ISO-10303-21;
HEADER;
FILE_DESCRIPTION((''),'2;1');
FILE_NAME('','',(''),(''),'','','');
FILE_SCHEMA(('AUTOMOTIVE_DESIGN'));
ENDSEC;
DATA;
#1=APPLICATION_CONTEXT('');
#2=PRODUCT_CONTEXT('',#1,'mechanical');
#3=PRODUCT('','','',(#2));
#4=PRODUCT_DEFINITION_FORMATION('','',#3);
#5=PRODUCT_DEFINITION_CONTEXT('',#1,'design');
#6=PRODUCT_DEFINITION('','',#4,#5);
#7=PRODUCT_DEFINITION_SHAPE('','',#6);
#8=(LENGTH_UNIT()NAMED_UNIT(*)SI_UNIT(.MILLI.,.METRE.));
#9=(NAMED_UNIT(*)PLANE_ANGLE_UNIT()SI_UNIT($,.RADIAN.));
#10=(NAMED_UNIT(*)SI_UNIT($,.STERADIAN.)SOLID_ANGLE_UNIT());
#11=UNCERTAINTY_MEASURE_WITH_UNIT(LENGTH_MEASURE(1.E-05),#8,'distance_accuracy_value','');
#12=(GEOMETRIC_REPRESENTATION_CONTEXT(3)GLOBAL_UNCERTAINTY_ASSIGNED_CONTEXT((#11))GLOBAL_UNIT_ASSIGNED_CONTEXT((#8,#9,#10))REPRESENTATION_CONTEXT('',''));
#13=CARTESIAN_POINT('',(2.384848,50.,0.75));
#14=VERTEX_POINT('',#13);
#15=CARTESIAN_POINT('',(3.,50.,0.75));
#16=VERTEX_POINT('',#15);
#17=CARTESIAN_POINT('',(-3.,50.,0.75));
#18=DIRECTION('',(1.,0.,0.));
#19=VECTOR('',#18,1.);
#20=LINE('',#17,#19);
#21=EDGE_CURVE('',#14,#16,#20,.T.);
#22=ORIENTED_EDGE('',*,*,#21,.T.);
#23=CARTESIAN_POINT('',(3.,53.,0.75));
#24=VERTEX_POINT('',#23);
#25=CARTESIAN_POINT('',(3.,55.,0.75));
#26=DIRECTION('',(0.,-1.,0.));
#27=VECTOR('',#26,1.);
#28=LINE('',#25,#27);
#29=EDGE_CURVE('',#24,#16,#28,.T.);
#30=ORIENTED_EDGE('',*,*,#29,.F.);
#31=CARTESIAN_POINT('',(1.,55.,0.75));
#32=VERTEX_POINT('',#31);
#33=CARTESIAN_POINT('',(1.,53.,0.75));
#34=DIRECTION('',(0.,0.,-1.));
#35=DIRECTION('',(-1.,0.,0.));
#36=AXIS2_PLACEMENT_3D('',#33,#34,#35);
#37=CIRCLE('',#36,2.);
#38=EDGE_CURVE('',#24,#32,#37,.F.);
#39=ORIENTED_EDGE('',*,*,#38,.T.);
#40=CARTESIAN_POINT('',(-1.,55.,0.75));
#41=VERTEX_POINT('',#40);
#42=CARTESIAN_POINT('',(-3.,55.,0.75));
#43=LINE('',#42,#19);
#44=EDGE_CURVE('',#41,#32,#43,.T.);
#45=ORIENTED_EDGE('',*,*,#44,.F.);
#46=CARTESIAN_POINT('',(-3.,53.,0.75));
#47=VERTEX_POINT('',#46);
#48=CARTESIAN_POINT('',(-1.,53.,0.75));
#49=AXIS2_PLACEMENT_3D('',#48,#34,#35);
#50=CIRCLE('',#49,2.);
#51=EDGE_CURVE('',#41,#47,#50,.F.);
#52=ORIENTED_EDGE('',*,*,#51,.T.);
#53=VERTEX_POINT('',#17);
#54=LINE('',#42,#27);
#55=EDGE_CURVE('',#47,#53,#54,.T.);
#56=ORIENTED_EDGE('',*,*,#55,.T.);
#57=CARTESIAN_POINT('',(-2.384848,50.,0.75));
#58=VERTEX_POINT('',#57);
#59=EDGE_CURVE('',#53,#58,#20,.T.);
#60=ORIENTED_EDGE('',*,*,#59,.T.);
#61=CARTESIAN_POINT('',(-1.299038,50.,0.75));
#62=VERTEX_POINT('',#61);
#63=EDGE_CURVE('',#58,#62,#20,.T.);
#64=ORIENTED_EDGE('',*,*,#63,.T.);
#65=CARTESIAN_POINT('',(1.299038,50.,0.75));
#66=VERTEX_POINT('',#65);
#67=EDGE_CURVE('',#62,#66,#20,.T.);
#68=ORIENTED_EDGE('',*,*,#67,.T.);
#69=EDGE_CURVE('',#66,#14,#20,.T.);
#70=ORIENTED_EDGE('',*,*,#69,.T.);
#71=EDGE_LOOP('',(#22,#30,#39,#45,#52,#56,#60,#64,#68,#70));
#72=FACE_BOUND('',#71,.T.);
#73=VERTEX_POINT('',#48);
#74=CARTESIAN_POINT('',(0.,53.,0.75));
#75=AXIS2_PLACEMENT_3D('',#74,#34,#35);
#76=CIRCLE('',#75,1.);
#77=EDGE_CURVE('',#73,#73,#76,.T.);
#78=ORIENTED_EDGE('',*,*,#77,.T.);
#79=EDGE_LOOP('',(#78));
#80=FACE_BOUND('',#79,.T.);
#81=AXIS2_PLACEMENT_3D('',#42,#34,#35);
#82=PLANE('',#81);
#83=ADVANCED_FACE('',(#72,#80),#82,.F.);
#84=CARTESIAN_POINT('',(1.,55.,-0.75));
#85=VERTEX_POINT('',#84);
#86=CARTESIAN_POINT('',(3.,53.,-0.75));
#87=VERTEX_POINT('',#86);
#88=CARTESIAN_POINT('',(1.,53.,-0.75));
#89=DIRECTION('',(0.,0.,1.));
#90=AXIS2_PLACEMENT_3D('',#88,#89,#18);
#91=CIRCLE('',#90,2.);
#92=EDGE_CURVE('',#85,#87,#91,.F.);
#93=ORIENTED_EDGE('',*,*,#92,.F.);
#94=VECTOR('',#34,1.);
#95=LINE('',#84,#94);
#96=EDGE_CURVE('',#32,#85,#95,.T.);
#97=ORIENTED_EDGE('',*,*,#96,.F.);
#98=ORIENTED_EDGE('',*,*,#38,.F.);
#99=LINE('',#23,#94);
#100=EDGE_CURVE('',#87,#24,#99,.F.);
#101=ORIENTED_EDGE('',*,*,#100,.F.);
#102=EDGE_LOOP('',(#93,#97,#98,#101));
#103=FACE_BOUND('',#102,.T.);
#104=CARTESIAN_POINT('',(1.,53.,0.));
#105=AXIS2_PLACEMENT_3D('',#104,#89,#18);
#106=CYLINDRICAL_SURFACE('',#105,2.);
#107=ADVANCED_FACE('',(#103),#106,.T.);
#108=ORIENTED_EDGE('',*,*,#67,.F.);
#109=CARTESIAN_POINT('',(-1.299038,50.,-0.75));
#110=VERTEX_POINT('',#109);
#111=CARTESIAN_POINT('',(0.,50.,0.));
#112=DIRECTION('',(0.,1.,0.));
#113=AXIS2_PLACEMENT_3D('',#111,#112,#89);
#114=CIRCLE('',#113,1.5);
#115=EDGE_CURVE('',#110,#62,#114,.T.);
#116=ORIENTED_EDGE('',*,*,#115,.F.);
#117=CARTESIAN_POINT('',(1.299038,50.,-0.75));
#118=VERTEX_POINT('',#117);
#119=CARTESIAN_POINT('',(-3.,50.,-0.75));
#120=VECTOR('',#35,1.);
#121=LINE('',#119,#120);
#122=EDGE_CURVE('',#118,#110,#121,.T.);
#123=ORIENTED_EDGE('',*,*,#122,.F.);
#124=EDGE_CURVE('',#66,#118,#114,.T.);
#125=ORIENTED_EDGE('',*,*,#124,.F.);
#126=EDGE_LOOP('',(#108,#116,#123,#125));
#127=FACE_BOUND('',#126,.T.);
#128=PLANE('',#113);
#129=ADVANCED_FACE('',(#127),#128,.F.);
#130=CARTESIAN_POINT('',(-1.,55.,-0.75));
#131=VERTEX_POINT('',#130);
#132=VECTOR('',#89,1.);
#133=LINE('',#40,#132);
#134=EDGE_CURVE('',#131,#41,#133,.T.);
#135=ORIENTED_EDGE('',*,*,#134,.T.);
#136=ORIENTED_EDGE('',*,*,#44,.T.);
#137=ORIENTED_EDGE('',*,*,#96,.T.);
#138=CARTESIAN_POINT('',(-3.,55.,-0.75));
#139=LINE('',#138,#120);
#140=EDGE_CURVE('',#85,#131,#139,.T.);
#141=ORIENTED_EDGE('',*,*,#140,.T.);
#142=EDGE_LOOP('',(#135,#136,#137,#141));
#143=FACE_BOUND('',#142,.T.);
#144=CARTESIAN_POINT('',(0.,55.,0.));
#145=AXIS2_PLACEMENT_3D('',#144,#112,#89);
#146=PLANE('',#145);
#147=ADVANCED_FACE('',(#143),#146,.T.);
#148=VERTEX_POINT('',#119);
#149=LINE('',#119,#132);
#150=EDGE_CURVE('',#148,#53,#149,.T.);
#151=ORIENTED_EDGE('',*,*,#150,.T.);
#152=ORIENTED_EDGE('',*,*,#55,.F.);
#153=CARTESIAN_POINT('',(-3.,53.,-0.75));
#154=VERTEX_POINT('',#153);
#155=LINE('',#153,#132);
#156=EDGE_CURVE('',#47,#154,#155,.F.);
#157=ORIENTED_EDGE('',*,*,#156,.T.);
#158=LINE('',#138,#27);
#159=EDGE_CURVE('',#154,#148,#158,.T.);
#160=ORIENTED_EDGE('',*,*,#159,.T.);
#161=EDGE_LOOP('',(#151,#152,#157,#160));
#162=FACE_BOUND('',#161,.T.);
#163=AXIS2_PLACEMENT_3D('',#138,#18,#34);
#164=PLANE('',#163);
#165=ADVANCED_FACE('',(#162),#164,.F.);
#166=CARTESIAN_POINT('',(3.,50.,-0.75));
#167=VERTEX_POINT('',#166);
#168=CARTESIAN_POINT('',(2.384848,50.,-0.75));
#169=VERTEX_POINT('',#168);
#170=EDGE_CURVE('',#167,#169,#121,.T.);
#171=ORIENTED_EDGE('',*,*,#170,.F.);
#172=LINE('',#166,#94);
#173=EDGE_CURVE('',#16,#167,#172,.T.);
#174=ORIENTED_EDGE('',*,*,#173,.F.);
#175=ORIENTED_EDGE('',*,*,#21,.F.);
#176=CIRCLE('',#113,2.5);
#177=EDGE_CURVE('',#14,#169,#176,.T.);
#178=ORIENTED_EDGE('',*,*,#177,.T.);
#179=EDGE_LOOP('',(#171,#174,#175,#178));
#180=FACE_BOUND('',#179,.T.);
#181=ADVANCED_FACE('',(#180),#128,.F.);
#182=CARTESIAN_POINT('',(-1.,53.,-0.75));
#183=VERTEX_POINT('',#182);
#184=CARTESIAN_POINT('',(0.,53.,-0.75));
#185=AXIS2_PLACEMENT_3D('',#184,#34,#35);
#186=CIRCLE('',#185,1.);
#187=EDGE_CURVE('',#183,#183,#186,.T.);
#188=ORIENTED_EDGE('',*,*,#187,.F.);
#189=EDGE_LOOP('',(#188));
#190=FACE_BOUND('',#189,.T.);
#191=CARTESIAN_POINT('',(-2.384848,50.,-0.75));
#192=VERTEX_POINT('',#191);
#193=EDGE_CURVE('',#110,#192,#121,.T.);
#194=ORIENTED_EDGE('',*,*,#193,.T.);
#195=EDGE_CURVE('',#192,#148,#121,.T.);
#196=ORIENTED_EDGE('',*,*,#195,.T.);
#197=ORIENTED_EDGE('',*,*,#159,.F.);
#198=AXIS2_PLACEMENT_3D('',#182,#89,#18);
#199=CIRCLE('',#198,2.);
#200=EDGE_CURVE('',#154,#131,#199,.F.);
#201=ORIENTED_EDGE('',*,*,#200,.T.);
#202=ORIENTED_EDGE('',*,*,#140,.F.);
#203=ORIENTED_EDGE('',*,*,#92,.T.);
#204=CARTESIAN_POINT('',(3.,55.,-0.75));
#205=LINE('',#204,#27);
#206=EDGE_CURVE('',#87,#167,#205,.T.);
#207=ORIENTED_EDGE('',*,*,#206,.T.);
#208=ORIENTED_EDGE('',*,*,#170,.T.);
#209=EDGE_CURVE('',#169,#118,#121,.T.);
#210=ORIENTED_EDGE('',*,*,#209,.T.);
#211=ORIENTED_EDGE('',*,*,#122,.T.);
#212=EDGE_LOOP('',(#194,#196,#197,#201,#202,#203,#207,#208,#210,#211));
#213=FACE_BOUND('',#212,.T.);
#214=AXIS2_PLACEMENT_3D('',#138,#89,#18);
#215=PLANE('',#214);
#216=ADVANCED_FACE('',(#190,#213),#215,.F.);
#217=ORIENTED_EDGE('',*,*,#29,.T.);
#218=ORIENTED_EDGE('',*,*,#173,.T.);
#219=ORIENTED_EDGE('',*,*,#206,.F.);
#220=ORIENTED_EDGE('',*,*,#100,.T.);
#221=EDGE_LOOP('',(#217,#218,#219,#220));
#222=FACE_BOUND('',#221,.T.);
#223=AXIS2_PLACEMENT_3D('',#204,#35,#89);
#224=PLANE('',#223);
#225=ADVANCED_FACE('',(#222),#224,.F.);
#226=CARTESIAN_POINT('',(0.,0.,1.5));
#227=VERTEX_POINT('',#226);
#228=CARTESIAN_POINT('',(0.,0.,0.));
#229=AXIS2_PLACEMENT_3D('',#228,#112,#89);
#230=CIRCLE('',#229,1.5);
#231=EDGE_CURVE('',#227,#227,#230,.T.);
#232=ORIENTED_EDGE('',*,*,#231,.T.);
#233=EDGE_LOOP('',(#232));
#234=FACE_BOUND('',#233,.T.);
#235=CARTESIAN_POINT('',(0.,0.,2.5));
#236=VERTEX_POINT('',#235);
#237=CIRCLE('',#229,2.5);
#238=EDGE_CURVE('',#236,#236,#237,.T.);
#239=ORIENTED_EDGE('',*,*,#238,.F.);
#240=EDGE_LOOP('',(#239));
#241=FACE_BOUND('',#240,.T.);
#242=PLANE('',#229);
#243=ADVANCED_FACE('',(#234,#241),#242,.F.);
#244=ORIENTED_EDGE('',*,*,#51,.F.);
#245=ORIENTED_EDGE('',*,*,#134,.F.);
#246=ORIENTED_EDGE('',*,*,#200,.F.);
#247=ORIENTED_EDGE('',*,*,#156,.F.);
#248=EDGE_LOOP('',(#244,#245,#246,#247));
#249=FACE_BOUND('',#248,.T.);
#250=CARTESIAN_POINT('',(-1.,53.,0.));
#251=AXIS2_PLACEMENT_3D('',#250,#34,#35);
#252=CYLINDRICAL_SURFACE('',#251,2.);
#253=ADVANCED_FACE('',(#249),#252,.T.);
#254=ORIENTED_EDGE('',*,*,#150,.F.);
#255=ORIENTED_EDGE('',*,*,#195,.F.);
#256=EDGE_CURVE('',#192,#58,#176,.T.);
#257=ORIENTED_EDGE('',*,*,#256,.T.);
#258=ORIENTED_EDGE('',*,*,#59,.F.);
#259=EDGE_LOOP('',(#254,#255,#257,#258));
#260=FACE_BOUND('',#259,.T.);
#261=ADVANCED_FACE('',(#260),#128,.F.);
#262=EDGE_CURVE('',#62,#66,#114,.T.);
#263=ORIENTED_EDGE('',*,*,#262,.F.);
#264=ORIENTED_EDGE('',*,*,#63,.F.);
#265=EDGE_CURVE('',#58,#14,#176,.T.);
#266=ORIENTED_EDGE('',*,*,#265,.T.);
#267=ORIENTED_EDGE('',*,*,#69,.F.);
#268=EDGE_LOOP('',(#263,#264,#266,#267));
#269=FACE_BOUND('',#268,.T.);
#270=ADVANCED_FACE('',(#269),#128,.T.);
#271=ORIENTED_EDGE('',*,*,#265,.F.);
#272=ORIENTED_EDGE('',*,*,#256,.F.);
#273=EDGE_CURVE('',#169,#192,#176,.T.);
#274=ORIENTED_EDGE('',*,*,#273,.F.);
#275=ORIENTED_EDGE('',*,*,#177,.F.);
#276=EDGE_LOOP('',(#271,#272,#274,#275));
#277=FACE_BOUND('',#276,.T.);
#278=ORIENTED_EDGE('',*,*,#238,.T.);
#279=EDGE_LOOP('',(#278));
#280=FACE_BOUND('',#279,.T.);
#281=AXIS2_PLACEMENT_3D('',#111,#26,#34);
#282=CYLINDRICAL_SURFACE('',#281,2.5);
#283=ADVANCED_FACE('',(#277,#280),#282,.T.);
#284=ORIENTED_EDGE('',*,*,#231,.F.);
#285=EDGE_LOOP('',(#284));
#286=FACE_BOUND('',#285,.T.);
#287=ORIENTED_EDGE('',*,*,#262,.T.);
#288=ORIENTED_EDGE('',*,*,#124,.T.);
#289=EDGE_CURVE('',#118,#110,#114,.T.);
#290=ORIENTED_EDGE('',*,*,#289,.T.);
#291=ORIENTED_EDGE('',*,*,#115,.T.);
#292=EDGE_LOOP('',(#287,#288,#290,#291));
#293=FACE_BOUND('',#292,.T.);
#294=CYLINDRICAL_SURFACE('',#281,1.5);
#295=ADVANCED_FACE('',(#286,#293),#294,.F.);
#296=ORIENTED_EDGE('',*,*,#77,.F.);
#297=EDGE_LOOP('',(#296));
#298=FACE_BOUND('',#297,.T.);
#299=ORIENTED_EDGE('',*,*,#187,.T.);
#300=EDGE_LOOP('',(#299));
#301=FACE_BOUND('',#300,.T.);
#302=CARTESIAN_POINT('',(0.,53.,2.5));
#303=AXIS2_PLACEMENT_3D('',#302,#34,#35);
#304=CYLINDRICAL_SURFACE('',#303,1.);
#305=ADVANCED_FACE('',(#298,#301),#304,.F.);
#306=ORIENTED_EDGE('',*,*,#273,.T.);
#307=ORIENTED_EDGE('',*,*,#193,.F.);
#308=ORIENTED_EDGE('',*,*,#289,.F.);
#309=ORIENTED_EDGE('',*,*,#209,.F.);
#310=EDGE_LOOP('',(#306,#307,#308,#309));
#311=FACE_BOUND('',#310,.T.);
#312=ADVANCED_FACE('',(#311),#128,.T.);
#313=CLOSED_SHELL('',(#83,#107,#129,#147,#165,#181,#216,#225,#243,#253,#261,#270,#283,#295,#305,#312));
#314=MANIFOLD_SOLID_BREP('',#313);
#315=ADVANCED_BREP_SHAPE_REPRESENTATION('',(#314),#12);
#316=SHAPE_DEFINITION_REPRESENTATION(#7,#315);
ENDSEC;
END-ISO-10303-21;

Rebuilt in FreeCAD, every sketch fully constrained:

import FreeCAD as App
import Part
import Sketcher

V = App.Vector
Q = App.Units.Quantity


def edges_at(feature, points):
    """Names of the edges that pass closest to the given points."""
    edges = feature.Shape.Edges
    near = lambda p: min(range(len(edges)), key=lambda i: edges[i].distToShape(Part.Vertex(*p))[0])
    return sorted({f"Edge{near(p) + 1}" for p in points})


def add_polygon(sketch, points):
    """Adds a closed chain of lines whose ends are joined by coincident constraints."""
    first, n = sketch.GeometryCount, len(points)
    for a, b in zip(points, points[1:] + points[:1]):
        sketch.addGeometry(Part.LineSegment(App.Vector(*a, 0), App.Vector(*b, 0)), False)
    for i in range(n):
        sketch.addConstraint(Sketcher.Constraint("Coincident", first + i, 2, first + (i + 1) % n, 1))

doc = App.newDocument("Part")
body = doc.addObject("PartDesign::Body", "Body")

sketch1 = body.newObject("Sketcher::SketchObject", "Sketch")
sketch1.AttachmentSupport = (doc.getObject("XZ_Plane"), [""])
sketch1.MapMode = "FlatFace"
sketch1.addGeometry(Part.Circle(V(0, 0, 0), V(0, 0, 1), 2.5), False)
sketch1.addGeometry(Part.Circle(V(0, 0, 0), V(0, 0, 1), 1.5), False)
sketch1.addConstraint(Sketcher.Constraint("Coincident", 0, 3, -1, 1))
sketch1.addConstraint(Sketcher.Constraint("Coincident", 1, 3, -1, 1))
sketch1.addConstraint(Sketcher.Constraint("Diameter", 0, Q("5 mm")))
sketch1.addConstraint(Sketcher.Constraint("Diameter", 1, Q("3 mm")))
pad1 = body.newObject("PartDesign::Pad", "Pad")
pad1.Profile = sketch1
pad1.Length = 50
pad1.Reversed = True

sketch2 = body.newObject("Sketcher::SketchObject", "Sketch001")
sketch2.AttachmentSupport = (doc.getObject("XZ_Plane"), [""])
sketch2.MapMode = "FlatFace"
sketch2.AttachmentOffset = App.Placement(V(0, 0, -50), App.Rotation())
add_polygon(sketch2, [(-3, -0.75), (-3, 0.75), (3, 0.75), (3, -0.75)])
sketch2.addConstraint(Sketcher.Constraint("Vertical", 0))
sketch2.addConstraint(Sketcher.Constraint("Horizontal", 1))
sketch2.addConstraint(Sketcher.Constraint("Vertical", 2))
sketch2.addConstraint(Sketcher.Constraint("Horizontal", 3))
sketch2.addConstraint(Sketcher.Constraint("Symmetric", 0, 2, 2, 2, -1, 1))
sketch2.addConstraint(Sketcher.Constraint("DistanceX", 1, 1, 1, 2, Q("6 mm")))
sketch2.addConstraint(Sketcher.Constraint("DistanceY", 0, 1, 0, 2, Q("1.5 mm")))
pad2 = body.newObject("PartDesign::Pad", "Pad001")
pad2.Profile = sketch2
pad2.Length = 5
pad2.Reversed = True

sketch3 = body.newObject("Sketcher::SketchObject", "Sketch002")
sketch3.AttachmentSupport = (doc.getObject("XY_Plane"), [""])
sketch3.MapMode = "FlatFace"
sketch3.AttachmentOffset = App.Placement(V(0, 0, -0.75), App.Rotation())
sketch3.addGeometry(Part.Circle(V(0, 53, 0), V(0, 0, 1), 1), False)
sketch3.addConstraint(Sketcher.Constraint("PointOnObject", 0, 3, -2))
sketch3.addConstraint(Sketcher.Constraint("Diameter", 0, Q("2 mm")))
sketch3.addConstraint(Sketcher.Constraint("DistanceY", -1, 1, 0, 3, Q("53 mm")))
pocket1 = body.newObject("PartDesign::Pocket", "Pocket")
pocket1.Profile = sketch3
pocket1.Type = "ThroughAll"
pocket1.Reversed = True
doc.recompute()

fillet = body.newObject("PartDesign::Fillet", "Fillet")
fillet.Base = (pocket1, edges_at(pocket1, [(3, 55, 0), (-3, 55, 0)]))
fillet.Radius = 2

doc.recompute()
